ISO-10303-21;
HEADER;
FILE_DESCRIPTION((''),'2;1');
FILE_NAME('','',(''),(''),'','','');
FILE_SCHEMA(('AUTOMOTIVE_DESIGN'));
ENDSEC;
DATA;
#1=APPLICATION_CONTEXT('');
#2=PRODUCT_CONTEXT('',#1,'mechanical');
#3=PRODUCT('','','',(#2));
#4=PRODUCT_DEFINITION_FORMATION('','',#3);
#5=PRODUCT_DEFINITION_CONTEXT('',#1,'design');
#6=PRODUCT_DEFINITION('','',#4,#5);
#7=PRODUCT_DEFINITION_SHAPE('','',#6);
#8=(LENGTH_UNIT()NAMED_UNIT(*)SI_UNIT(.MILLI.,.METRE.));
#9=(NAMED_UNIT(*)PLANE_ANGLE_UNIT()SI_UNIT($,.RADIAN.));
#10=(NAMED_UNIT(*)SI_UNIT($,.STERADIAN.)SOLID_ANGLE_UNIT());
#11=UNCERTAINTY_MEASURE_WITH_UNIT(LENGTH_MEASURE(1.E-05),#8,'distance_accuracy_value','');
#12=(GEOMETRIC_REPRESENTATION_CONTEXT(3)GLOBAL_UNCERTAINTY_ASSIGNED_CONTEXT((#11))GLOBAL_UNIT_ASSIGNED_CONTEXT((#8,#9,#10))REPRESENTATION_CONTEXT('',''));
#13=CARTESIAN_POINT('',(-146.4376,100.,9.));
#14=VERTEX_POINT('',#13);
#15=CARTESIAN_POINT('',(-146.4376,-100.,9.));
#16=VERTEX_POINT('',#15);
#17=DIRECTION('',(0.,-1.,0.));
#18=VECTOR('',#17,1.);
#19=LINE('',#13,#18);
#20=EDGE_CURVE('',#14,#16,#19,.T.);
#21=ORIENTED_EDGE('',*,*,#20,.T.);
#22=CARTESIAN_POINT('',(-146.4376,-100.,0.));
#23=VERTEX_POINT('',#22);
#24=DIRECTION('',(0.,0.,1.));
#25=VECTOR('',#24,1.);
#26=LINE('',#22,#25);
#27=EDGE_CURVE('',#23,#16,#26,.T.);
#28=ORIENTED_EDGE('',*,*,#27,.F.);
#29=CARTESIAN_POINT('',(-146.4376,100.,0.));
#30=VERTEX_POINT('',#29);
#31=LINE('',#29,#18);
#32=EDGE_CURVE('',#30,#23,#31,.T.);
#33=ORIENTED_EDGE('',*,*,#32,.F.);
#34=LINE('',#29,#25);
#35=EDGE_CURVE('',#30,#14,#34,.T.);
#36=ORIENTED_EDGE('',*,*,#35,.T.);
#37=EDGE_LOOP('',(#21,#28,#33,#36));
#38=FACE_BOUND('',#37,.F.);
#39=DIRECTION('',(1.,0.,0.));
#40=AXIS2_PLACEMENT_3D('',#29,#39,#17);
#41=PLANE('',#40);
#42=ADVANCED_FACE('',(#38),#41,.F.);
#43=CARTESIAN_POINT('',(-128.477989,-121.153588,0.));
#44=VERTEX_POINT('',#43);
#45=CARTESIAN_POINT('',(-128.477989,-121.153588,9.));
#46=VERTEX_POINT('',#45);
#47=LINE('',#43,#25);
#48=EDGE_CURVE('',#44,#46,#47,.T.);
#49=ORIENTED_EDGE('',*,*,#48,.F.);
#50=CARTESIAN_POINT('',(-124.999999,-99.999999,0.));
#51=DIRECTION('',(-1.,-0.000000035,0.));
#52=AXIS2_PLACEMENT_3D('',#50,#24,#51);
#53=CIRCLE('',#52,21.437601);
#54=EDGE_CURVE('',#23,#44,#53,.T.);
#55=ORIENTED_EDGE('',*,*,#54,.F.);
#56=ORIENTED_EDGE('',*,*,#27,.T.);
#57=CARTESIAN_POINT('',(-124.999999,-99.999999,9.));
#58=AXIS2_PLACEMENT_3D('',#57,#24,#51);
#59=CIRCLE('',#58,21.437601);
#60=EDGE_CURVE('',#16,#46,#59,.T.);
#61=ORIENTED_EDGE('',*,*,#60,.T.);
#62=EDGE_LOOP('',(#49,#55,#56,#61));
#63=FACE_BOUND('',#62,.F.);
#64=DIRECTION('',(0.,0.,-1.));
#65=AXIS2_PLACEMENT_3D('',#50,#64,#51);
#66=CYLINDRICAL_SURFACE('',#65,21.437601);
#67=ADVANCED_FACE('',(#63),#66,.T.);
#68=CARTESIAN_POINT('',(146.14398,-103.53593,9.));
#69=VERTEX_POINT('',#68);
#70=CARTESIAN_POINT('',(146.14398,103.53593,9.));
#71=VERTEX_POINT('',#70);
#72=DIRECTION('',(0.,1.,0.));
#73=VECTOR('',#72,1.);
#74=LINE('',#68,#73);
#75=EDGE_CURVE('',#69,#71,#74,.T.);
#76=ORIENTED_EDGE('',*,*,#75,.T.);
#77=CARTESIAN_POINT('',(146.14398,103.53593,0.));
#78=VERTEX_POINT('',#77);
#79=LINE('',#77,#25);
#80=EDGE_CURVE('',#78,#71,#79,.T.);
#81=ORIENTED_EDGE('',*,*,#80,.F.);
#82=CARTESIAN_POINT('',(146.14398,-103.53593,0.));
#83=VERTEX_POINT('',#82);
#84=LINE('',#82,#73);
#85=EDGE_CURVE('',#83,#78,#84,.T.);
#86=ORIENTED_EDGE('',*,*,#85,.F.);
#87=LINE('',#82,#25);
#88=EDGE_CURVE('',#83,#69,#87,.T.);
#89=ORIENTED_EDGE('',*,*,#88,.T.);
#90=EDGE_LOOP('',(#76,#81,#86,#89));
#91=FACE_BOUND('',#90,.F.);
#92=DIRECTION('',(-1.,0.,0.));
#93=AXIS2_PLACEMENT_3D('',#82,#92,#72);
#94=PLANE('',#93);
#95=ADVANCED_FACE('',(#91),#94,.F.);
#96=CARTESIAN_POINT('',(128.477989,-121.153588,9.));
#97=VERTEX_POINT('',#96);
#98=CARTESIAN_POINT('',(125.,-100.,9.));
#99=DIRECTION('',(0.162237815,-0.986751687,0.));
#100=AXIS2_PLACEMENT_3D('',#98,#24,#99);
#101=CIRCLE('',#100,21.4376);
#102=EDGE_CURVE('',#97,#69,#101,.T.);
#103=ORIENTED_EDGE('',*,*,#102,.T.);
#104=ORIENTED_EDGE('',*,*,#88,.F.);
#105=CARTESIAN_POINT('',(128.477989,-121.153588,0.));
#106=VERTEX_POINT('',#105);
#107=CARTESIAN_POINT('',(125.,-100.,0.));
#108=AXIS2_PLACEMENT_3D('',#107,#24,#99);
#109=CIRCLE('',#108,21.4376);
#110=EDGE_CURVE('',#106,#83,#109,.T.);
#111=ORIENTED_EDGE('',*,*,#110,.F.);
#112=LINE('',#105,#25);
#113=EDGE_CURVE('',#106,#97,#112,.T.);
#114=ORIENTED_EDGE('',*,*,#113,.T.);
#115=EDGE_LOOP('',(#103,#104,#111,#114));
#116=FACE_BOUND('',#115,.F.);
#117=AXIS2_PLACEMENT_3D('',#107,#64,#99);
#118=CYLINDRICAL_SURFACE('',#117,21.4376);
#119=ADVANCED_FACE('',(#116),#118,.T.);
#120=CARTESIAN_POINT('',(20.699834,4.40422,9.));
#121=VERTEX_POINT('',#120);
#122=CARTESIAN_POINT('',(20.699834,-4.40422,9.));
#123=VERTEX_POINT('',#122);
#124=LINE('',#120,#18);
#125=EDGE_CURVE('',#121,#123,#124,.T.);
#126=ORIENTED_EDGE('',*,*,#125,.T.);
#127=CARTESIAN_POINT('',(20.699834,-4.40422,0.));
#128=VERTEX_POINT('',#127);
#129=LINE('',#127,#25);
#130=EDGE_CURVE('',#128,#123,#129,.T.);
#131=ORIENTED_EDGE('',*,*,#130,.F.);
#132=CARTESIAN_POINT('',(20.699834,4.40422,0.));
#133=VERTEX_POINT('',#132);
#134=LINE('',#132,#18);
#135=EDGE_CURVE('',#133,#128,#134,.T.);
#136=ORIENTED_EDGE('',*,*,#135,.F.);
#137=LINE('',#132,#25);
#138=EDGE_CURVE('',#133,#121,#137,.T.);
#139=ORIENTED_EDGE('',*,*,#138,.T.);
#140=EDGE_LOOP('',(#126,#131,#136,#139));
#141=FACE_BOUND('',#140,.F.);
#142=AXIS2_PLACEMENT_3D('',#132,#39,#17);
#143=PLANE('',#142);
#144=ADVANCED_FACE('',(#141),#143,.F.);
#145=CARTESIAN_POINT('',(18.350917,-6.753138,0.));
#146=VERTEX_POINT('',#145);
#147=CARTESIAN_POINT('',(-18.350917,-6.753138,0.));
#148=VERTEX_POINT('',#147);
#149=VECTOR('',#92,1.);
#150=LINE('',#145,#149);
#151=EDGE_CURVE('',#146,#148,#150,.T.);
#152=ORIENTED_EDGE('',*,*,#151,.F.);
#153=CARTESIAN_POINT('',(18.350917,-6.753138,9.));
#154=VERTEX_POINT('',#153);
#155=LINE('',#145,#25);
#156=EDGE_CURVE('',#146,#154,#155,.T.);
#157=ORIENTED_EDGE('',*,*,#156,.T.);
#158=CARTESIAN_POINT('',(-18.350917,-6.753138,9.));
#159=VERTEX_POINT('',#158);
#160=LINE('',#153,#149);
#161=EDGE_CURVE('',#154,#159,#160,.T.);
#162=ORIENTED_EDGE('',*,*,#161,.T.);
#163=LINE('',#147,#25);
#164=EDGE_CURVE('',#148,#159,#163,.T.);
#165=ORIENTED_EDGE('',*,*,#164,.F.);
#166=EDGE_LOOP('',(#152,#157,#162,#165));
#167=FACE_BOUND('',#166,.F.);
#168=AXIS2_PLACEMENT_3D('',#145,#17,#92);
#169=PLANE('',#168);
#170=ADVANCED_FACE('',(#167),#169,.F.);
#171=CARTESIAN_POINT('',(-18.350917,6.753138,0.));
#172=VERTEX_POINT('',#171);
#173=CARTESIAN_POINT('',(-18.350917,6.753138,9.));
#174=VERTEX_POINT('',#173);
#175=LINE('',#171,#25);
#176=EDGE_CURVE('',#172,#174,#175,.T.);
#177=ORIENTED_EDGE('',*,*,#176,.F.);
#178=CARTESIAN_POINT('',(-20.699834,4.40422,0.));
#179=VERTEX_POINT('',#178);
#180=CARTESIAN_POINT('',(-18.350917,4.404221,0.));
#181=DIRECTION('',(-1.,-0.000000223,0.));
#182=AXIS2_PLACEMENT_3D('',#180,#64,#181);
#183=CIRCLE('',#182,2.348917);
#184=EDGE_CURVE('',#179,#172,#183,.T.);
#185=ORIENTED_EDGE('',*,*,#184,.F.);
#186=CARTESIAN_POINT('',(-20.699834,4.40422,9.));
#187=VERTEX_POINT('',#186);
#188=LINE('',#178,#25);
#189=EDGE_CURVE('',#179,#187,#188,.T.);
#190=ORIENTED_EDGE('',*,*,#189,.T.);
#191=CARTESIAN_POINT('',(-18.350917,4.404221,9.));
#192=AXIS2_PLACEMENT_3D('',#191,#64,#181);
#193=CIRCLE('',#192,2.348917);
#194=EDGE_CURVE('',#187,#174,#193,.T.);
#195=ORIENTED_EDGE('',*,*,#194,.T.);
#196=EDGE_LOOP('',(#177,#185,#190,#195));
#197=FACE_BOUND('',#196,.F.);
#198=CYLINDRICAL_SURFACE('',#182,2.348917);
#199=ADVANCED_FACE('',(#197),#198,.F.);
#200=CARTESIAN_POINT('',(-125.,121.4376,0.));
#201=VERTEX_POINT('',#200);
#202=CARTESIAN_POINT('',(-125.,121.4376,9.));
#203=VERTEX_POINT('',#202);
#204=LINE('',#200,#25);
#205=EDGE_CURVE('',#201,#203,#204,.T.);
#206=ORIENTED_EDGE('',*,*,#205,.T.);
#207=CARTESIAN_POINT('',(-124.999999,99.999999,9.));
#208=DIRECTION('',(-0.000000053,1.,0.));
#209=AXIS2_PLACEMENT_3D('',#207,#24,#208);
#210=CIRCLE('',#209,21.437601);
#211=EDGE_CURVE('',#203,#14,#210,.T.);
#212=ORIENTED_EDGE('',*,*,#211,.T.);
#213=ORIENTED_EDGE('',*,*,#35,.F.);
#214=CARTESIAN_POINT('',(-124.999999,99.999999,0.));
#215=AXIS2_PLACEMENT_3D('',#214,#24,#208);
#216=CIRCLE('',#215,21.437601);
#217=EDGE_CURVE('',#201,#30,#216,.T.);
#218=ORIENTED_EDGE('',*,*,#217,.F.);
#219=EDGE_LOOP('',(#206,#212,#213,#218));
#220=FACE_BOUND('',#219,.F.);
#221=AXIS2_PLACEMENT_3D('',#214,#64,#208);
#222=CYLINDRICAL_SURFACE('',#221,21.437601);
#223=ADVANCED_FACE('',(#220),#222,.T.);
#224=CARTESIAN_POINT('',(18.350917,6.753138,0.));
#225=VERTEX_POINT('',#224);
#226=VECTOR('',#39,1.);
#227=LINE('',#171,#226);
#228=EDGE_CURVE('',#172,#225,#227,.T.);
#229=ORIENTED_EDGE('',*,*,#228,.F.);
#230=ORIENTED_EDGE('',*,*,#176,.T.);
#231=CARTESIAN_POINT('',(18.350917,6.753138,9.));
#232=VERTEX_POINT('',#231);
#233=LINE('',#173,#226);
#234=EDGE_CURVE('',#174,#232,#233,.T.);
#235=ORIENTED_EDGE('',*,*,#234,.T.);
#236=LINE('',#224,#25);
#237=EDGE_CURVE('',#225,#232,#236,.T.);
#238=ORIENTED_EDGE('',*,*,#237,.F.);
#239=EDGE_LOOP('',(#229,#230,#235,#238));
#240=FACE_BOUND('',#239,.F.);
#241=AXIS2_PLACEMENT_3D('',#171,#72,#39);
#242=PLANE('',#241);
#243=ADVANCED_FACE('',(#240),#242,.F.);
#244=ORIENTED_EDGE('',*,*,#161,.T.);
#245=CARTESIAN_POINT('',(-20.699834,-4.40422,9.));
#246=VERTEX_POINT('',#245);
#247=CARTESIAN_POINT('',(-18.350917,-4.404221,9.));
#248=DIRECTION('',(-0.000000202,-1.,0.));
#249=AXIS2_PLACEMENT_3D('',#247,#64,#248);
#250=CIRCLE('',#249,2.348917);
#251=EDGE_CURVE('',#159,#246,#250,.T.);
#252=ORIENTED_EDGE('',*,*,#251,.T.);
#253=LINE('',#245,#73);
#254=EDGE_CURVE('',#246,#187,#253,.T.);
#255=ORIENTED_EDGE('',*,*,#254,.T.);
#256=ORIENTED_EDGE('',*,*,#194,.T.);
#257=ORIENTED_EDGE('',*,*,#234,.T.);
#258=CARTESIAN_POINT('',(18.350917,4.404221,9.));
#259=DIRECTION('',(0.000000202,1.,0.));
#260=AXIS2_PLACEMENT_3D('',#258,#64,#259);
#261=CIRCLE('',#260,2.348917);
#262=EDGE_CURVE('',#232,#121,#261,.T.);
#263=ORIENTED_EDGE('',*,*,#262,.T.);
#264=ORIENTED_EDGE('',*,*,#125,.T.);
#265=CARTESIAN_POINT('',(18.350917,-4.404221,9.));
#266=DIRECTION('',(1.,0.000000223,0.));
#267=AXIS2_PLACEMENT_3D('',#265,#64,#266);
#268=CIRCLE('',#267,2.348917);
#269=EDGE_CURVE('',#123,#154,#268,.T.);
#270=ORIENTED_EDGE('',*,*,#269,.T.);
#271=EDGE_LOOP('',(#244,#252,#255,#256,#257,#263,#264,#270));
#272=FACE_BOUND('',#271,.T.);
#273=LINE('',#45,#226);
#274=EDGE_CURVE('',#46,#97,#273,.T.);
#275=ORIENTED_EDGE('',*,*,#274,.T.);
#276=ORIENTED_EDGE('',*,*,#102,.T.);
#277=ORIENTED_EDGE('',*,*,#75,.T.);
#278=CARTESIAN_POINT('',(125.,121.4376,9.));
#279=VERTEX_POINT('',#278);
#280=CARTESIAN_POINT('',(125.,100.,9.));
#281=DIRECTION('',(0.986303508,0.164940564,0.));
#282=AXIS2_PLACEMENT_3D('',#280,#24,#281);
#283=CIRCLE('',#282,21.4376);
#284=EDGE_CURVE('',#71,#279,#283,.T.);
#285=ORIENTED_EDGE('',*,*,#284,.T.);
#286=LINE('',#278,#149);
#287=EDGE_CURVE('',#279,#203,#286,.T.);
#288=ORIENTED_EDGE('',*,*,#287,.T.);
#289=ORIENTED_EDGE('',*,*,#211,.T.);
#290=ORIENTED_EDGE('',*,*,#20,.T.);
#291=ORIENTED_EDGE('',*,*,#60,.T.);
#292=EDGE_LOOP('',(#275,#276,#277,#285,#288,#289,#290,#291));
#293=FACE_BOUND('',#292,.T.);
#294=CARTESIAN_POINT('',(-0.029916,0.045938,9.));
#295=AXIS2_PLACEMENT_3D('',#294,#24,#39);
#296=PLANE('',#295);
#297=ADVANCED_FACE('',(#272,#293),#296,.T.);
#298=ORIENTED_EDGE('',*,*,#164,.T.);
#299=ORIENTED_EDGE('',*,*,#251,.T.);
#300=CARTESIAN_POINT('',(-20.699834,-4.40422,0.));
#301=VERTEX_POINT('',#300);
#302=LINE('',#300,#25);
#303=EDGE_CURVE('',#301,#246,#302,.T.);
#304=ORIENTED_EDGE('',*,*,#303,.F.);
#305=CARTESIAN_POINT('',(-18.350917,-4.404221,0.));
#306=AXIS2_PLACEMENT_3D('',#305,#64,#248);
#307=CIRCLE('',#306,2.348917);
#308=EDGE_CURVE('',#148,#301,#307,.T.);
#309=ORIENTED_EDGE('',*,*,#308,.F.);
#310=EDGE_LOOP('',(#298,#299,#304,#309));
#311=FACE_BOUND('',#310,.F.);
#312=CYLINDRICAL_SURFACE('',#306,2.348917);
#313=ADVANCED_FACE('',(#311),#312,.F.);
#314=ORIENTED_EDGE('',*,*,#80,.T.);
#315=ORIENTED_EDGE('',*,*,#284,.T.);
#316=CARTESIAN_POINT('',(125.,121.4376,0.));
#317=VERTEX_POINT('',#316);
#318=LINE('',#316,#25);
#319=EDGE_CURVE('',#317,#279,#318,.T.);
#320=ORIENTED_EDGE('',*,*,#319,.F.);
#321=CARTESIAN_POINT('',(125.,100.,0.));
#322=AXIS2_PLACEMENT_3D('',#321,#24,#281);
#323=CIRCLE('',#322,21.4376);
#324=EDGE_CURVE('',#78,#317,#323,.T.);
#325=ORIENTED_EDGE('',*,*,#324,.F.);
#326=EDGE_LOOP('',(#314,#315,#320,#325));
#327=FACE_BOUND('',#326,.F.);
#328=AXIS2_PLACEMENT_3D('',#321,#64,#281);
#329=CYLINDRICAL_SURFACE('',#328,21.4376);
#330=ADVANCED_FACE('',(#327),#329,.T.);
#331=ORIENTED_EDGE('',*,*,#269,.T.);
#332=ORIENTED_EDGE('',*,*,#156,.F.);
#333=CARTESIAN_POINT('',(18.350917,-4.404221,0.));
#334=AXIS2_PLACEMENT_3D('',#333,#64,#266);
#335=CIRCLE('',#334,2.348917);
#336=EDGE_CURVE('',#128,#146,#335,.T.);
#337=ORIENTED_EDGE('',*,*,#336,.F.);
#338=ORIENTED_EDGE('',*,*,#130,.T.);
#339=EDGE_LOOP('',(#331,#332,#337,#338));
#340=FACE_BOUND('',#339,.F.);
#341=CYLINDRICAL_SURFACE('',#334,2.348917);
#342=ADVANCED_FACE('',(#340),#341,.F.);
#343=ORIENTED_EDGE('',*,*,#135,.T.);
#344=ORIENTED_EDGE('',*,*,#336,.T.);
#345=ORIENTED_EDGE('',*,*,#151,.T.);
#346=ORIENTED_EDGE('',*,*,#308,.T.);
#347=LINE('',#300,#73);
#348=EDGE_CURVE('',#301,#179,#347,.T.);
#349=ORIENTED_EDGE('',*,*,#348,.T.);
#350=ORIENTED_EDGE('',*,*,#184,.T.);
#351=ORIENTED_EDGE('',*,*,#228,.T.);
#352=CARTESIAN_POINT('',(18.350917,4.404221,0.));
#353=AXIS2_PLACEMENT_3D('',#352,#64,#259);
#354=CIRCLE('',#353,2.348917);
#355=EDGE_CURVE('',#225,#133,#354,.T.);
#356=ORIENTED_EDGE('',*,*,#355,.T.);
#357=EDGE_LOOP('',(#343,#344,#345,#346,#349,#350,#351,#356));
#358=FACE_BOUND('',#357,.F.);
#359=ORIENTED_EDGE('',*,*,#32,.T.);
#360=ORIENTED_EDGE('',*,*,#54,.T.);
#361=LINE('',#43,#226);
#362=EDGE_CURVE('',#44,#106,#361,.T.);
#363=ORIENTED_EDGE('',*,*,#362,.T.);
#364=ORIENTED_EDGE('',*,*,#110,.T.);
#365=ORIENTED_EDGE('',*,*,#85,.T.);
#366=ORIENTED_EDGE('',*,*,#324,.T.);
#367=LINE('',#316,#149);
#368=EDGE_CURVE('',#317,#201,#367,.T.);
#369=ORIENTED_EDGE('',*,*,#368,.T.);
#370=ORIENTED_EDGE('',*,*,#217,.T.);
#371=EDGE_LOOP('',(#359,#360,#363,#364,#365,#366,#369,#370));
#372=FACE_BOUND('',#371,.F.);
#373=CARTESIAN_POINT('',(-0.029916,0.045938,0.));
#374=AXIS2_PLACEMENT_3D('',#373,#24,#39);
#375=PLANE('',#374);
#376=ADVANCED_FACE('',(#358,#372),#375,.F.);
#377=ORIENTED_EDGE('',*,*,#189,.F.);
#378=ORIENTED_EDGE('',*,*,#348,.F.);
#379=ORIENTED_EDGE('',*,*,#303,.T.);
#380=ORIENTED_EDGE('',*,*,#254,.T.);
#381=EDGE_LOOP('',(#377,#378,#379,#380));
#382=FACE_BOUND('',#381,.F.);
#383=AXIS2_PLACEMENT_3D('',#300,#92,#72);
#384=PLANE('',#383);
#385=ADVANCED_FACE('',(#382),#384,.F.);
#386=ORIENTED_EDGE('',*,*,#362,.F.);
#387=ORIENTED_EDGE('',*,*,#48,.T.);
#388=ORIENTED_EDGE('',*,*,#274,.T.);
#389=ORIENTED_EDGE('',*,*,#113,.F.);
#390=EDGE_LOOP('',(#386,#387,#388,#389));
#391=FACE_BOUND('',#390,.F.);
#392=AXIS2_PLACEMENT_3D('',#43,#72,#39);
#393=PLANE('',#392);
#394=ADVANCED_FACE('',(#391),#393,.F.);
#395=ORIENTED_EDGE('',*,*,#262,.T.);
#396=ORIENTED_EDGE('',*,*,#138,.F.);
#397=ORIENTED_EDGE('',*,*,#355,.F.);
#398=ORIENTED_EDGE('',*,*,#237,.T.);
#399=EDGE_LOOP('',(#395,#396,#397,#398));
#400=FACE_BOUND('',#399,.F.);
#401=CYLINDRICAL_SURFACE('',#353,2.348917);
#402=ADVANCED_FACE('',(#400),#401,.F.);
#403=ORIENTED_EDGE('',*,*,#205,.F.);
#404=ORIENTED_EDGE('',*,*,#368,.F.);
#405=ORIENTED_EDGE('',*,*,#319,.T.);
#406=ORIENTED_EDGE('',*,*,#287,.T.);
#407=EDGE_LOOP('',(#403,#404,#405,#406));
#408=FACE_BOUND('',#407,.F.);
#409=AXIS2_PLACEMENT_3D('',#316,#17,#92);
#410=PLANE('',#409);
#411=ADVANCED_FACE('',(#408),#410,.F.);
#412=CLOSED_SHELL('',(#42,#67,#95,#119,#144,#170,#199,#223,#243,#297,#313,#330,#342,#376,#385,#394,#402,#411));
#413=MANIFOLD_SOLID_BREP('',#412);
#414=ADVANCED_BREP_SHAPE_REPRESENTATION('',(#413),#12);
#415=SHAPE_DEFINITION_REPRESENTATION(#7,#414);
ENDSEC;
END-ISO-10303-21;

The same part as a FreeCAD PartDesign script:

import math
import FreeCAD as App
import Part
import Sketcher

V = App.Vector

doc = App.newDocument("Part")
params = doc.addObject("Spreadsheet::Sheet", "Params")
for row, (alias, value) in enumerate([
    ("sketch1_width", "250 mm"),
    ("sketch1_height", "200 mm"),
    ("pad1_length", "9 mm"),
], start=1):
    params.set(f"A{row}", alias)
    params.set(f"B{row}", "=" + value)
    params.setAlias(f"B{row}", alias)

body = doc.addObject("PartDesign::Body", "Body")

# Sketch on XY plane
sketch1 = body.newObject("Sketcher::SketchObject", "Sketch")
sketch1.AttachmentSupport = (doc.getObject("XY_Plane"), [""])
sketch1.MapMode = "FlatFace"
sketch1.addGeometry([
    Part.LineSegment(V(125, 121.4, 0), V(-125, 121.4, 0)),  # 0
    Part.ArcOfCircle(Part.Circle(V(-125, 100, 0), V(0, 0, 1), 21.4), math.radians(90), math.radians(180)),  # 1
    Part.LineSegment(V(-146.4, 100, 0), V(-146.4, -100, 0)),  # 2
    Part.ArcOfCircle(Part.Circle(V(-125, -100, 0), V(0, 0, 1), 21.4), math.radians(-180), math.radians(-99)),  # 3
    Part.LineSegment(V(-128.5, -121.2, 0), V(128.5, -121.2, 0)),  # 4
    Part.ArcOfCircle(Part.Circle(V(125, -100, 0), V(0, 0, 1), 21.4), math.radians(-81), math.radians(-9)),  # 5
    Part.LineSegment(V(146.1, -103.5, 0), V(146.1, 103.5, 0)),  # 6
    Part.ArcOfCircle(Part.Circle(V(125, 100, 0), V(0, 0, 1), 21.4), math.radians(9), math.radians(90)),  # 7
    Part.ArcOfCircle(Part.Circle(V(-18.4, -4.4, 0), V(0, 0, 1), 2.3), math.radians(180), math.radians(270)),  # 8
    Part.LineSegment(V(-20.7, -4.4, 0), V(-20.7, 4.4, 0)),  # 9
    Part.ArcOfCircle(Part.Circle(V(-18.4, 4.4, 0), V(0, 0, 1), 2.3), math.radians(90), math.radians(180)),  # 10
    Part.LineSegment(V(-18.4, 6.8, 0), V(18.4, 6.8, 0)),  # 11
    Part.ArcOfCircle(Part.Circle(V(18.4, 4.4, 0), V(0, 0, 1), 2.3), math.radians(0), math.radians(90)),  # 12
    Part.LineSegment(V(20.7, 4.4, 0), V(20.7, -4.4, 0)),  # 13
    Part.ArcOfCircle(Part.Circle(V(18.4, -4.4, 0), V(0, 0, 1), 2.3), math.radians(-90), math.radians(0)),  # 14
    Part.LineSegment(V(18.4, -6.8, 0), V(-18.4, -6.8, 0)),  # 15
], False)
sketch1.addConstraint([
    Sketcher.Constraint("Tangent", 0, 2, 1, 1),
    Sketcher.Constraint("Tangent", 1, 2, 2, 1),
    Sketcher.Constraint("Tangent", 2, 2, 3, 1),
    Sketcher.Constraint("Coincident", 3, 2, 4, 1),
    Sketcher.Constraint("Coincident", 4, 2, 5, 1),
    Sketcher.Constraint("Coincident", 5, 2, 6, 1),
    Sketcher.Constraint("Coincident", 6, 2, 7, 1),
    Sketcher.Constraint("Tangent", 7, 2, 0, 1),
    Sketcher.Constraint("Tangent", 8, 1, 9, 1),
    Sketcher.Constraint("Tangent", 9, 2, 10, 2),
    Sketcher.Constraint("Tangent", 10, 1, 11, 1),
    Sketcher.Constraint("Tangent", 11, 2, 12, 2),
    Sketcher.Constraint("Tangent", 12, 1, 13, 1),
    Sketcher.Constraint("Tangent", 13, 2, 14, 2),
    Sketcher.Constraint("Tangent", 14, 1, 15, 1),
    Sketcher.Constraint("Tangent", 15, 2, 8, 2),
    Sketcher.Constraint("Horizontal", 0),
    Sketcher.Constraint("Vertical", 2),
    Sketcher.Constraint("Horizontal", 4),
    Sketcher.Constraint("Vertical", 6),
    Sketcher.Constraint("Vertical", 9),
    Sketcher.Constraint("Horizontal", 11),
    Sketcher.Constraint("Vertical", 13),
    Sketcher.Constraint("Horizontal", 15),
    Sketcher.Constraint("Equal", 1, 3),
    Sketcher.Constraint("Equal", 3, 5),
    Sketcher.Constraint("Equal", 5, 7),
    Sketcher.Constraint("Equal", 8, 10),
    Sketcher.Constraint("Equal", 10, 12),
    Sketcher.Constraint("Equal", 12, 14),
    Sketcher.Constraint("Symmetric", 1, 3, 5, 3, -1, 1),
    Sketcher.Constraint("Symmetric", 3, 3, 7, 3, -1, 1),
    Sketcher.Constraint("Symmetric", 8, 3, 12, 3, -1, 1),
    Sketcher.Constraint("DistanceX", 0, 2, 0, 1, 250.0),
    Sketcher.Constraint("DistanceY", 2, 2, 2, 1, 200.0),
    Sketcher.Constraint("Radius", 1, 21.437601),
    Sketcher.Constraint("Radius", 8, 2.348917),
    Sketcher.Constraint("DistanceX", 4, 1, 4, 2, 256.955978),
    Sketcher.Constraint("DistanceY", 6, 1, 6, 2, 207.07186),
    Sketcher.Constraint("DistanceY", 9, 1, 9, 2, 8.80844),
    Sketcher.Constraint("DistanceX", 11, 1, 11, 2, 36.701834),
])
sketch1.setExpression("Constraints[33]", "Params.sketch1_width")
sketch1.setExpression("Constraints[34]", "Params.sketch1_height")
pad1 = body.newObject("PartDesign::Pad", "Pad")
pad1.Profile = sketch1
pad1.setExpression("Length", "Params.pad1_length")

doc.recompute()
